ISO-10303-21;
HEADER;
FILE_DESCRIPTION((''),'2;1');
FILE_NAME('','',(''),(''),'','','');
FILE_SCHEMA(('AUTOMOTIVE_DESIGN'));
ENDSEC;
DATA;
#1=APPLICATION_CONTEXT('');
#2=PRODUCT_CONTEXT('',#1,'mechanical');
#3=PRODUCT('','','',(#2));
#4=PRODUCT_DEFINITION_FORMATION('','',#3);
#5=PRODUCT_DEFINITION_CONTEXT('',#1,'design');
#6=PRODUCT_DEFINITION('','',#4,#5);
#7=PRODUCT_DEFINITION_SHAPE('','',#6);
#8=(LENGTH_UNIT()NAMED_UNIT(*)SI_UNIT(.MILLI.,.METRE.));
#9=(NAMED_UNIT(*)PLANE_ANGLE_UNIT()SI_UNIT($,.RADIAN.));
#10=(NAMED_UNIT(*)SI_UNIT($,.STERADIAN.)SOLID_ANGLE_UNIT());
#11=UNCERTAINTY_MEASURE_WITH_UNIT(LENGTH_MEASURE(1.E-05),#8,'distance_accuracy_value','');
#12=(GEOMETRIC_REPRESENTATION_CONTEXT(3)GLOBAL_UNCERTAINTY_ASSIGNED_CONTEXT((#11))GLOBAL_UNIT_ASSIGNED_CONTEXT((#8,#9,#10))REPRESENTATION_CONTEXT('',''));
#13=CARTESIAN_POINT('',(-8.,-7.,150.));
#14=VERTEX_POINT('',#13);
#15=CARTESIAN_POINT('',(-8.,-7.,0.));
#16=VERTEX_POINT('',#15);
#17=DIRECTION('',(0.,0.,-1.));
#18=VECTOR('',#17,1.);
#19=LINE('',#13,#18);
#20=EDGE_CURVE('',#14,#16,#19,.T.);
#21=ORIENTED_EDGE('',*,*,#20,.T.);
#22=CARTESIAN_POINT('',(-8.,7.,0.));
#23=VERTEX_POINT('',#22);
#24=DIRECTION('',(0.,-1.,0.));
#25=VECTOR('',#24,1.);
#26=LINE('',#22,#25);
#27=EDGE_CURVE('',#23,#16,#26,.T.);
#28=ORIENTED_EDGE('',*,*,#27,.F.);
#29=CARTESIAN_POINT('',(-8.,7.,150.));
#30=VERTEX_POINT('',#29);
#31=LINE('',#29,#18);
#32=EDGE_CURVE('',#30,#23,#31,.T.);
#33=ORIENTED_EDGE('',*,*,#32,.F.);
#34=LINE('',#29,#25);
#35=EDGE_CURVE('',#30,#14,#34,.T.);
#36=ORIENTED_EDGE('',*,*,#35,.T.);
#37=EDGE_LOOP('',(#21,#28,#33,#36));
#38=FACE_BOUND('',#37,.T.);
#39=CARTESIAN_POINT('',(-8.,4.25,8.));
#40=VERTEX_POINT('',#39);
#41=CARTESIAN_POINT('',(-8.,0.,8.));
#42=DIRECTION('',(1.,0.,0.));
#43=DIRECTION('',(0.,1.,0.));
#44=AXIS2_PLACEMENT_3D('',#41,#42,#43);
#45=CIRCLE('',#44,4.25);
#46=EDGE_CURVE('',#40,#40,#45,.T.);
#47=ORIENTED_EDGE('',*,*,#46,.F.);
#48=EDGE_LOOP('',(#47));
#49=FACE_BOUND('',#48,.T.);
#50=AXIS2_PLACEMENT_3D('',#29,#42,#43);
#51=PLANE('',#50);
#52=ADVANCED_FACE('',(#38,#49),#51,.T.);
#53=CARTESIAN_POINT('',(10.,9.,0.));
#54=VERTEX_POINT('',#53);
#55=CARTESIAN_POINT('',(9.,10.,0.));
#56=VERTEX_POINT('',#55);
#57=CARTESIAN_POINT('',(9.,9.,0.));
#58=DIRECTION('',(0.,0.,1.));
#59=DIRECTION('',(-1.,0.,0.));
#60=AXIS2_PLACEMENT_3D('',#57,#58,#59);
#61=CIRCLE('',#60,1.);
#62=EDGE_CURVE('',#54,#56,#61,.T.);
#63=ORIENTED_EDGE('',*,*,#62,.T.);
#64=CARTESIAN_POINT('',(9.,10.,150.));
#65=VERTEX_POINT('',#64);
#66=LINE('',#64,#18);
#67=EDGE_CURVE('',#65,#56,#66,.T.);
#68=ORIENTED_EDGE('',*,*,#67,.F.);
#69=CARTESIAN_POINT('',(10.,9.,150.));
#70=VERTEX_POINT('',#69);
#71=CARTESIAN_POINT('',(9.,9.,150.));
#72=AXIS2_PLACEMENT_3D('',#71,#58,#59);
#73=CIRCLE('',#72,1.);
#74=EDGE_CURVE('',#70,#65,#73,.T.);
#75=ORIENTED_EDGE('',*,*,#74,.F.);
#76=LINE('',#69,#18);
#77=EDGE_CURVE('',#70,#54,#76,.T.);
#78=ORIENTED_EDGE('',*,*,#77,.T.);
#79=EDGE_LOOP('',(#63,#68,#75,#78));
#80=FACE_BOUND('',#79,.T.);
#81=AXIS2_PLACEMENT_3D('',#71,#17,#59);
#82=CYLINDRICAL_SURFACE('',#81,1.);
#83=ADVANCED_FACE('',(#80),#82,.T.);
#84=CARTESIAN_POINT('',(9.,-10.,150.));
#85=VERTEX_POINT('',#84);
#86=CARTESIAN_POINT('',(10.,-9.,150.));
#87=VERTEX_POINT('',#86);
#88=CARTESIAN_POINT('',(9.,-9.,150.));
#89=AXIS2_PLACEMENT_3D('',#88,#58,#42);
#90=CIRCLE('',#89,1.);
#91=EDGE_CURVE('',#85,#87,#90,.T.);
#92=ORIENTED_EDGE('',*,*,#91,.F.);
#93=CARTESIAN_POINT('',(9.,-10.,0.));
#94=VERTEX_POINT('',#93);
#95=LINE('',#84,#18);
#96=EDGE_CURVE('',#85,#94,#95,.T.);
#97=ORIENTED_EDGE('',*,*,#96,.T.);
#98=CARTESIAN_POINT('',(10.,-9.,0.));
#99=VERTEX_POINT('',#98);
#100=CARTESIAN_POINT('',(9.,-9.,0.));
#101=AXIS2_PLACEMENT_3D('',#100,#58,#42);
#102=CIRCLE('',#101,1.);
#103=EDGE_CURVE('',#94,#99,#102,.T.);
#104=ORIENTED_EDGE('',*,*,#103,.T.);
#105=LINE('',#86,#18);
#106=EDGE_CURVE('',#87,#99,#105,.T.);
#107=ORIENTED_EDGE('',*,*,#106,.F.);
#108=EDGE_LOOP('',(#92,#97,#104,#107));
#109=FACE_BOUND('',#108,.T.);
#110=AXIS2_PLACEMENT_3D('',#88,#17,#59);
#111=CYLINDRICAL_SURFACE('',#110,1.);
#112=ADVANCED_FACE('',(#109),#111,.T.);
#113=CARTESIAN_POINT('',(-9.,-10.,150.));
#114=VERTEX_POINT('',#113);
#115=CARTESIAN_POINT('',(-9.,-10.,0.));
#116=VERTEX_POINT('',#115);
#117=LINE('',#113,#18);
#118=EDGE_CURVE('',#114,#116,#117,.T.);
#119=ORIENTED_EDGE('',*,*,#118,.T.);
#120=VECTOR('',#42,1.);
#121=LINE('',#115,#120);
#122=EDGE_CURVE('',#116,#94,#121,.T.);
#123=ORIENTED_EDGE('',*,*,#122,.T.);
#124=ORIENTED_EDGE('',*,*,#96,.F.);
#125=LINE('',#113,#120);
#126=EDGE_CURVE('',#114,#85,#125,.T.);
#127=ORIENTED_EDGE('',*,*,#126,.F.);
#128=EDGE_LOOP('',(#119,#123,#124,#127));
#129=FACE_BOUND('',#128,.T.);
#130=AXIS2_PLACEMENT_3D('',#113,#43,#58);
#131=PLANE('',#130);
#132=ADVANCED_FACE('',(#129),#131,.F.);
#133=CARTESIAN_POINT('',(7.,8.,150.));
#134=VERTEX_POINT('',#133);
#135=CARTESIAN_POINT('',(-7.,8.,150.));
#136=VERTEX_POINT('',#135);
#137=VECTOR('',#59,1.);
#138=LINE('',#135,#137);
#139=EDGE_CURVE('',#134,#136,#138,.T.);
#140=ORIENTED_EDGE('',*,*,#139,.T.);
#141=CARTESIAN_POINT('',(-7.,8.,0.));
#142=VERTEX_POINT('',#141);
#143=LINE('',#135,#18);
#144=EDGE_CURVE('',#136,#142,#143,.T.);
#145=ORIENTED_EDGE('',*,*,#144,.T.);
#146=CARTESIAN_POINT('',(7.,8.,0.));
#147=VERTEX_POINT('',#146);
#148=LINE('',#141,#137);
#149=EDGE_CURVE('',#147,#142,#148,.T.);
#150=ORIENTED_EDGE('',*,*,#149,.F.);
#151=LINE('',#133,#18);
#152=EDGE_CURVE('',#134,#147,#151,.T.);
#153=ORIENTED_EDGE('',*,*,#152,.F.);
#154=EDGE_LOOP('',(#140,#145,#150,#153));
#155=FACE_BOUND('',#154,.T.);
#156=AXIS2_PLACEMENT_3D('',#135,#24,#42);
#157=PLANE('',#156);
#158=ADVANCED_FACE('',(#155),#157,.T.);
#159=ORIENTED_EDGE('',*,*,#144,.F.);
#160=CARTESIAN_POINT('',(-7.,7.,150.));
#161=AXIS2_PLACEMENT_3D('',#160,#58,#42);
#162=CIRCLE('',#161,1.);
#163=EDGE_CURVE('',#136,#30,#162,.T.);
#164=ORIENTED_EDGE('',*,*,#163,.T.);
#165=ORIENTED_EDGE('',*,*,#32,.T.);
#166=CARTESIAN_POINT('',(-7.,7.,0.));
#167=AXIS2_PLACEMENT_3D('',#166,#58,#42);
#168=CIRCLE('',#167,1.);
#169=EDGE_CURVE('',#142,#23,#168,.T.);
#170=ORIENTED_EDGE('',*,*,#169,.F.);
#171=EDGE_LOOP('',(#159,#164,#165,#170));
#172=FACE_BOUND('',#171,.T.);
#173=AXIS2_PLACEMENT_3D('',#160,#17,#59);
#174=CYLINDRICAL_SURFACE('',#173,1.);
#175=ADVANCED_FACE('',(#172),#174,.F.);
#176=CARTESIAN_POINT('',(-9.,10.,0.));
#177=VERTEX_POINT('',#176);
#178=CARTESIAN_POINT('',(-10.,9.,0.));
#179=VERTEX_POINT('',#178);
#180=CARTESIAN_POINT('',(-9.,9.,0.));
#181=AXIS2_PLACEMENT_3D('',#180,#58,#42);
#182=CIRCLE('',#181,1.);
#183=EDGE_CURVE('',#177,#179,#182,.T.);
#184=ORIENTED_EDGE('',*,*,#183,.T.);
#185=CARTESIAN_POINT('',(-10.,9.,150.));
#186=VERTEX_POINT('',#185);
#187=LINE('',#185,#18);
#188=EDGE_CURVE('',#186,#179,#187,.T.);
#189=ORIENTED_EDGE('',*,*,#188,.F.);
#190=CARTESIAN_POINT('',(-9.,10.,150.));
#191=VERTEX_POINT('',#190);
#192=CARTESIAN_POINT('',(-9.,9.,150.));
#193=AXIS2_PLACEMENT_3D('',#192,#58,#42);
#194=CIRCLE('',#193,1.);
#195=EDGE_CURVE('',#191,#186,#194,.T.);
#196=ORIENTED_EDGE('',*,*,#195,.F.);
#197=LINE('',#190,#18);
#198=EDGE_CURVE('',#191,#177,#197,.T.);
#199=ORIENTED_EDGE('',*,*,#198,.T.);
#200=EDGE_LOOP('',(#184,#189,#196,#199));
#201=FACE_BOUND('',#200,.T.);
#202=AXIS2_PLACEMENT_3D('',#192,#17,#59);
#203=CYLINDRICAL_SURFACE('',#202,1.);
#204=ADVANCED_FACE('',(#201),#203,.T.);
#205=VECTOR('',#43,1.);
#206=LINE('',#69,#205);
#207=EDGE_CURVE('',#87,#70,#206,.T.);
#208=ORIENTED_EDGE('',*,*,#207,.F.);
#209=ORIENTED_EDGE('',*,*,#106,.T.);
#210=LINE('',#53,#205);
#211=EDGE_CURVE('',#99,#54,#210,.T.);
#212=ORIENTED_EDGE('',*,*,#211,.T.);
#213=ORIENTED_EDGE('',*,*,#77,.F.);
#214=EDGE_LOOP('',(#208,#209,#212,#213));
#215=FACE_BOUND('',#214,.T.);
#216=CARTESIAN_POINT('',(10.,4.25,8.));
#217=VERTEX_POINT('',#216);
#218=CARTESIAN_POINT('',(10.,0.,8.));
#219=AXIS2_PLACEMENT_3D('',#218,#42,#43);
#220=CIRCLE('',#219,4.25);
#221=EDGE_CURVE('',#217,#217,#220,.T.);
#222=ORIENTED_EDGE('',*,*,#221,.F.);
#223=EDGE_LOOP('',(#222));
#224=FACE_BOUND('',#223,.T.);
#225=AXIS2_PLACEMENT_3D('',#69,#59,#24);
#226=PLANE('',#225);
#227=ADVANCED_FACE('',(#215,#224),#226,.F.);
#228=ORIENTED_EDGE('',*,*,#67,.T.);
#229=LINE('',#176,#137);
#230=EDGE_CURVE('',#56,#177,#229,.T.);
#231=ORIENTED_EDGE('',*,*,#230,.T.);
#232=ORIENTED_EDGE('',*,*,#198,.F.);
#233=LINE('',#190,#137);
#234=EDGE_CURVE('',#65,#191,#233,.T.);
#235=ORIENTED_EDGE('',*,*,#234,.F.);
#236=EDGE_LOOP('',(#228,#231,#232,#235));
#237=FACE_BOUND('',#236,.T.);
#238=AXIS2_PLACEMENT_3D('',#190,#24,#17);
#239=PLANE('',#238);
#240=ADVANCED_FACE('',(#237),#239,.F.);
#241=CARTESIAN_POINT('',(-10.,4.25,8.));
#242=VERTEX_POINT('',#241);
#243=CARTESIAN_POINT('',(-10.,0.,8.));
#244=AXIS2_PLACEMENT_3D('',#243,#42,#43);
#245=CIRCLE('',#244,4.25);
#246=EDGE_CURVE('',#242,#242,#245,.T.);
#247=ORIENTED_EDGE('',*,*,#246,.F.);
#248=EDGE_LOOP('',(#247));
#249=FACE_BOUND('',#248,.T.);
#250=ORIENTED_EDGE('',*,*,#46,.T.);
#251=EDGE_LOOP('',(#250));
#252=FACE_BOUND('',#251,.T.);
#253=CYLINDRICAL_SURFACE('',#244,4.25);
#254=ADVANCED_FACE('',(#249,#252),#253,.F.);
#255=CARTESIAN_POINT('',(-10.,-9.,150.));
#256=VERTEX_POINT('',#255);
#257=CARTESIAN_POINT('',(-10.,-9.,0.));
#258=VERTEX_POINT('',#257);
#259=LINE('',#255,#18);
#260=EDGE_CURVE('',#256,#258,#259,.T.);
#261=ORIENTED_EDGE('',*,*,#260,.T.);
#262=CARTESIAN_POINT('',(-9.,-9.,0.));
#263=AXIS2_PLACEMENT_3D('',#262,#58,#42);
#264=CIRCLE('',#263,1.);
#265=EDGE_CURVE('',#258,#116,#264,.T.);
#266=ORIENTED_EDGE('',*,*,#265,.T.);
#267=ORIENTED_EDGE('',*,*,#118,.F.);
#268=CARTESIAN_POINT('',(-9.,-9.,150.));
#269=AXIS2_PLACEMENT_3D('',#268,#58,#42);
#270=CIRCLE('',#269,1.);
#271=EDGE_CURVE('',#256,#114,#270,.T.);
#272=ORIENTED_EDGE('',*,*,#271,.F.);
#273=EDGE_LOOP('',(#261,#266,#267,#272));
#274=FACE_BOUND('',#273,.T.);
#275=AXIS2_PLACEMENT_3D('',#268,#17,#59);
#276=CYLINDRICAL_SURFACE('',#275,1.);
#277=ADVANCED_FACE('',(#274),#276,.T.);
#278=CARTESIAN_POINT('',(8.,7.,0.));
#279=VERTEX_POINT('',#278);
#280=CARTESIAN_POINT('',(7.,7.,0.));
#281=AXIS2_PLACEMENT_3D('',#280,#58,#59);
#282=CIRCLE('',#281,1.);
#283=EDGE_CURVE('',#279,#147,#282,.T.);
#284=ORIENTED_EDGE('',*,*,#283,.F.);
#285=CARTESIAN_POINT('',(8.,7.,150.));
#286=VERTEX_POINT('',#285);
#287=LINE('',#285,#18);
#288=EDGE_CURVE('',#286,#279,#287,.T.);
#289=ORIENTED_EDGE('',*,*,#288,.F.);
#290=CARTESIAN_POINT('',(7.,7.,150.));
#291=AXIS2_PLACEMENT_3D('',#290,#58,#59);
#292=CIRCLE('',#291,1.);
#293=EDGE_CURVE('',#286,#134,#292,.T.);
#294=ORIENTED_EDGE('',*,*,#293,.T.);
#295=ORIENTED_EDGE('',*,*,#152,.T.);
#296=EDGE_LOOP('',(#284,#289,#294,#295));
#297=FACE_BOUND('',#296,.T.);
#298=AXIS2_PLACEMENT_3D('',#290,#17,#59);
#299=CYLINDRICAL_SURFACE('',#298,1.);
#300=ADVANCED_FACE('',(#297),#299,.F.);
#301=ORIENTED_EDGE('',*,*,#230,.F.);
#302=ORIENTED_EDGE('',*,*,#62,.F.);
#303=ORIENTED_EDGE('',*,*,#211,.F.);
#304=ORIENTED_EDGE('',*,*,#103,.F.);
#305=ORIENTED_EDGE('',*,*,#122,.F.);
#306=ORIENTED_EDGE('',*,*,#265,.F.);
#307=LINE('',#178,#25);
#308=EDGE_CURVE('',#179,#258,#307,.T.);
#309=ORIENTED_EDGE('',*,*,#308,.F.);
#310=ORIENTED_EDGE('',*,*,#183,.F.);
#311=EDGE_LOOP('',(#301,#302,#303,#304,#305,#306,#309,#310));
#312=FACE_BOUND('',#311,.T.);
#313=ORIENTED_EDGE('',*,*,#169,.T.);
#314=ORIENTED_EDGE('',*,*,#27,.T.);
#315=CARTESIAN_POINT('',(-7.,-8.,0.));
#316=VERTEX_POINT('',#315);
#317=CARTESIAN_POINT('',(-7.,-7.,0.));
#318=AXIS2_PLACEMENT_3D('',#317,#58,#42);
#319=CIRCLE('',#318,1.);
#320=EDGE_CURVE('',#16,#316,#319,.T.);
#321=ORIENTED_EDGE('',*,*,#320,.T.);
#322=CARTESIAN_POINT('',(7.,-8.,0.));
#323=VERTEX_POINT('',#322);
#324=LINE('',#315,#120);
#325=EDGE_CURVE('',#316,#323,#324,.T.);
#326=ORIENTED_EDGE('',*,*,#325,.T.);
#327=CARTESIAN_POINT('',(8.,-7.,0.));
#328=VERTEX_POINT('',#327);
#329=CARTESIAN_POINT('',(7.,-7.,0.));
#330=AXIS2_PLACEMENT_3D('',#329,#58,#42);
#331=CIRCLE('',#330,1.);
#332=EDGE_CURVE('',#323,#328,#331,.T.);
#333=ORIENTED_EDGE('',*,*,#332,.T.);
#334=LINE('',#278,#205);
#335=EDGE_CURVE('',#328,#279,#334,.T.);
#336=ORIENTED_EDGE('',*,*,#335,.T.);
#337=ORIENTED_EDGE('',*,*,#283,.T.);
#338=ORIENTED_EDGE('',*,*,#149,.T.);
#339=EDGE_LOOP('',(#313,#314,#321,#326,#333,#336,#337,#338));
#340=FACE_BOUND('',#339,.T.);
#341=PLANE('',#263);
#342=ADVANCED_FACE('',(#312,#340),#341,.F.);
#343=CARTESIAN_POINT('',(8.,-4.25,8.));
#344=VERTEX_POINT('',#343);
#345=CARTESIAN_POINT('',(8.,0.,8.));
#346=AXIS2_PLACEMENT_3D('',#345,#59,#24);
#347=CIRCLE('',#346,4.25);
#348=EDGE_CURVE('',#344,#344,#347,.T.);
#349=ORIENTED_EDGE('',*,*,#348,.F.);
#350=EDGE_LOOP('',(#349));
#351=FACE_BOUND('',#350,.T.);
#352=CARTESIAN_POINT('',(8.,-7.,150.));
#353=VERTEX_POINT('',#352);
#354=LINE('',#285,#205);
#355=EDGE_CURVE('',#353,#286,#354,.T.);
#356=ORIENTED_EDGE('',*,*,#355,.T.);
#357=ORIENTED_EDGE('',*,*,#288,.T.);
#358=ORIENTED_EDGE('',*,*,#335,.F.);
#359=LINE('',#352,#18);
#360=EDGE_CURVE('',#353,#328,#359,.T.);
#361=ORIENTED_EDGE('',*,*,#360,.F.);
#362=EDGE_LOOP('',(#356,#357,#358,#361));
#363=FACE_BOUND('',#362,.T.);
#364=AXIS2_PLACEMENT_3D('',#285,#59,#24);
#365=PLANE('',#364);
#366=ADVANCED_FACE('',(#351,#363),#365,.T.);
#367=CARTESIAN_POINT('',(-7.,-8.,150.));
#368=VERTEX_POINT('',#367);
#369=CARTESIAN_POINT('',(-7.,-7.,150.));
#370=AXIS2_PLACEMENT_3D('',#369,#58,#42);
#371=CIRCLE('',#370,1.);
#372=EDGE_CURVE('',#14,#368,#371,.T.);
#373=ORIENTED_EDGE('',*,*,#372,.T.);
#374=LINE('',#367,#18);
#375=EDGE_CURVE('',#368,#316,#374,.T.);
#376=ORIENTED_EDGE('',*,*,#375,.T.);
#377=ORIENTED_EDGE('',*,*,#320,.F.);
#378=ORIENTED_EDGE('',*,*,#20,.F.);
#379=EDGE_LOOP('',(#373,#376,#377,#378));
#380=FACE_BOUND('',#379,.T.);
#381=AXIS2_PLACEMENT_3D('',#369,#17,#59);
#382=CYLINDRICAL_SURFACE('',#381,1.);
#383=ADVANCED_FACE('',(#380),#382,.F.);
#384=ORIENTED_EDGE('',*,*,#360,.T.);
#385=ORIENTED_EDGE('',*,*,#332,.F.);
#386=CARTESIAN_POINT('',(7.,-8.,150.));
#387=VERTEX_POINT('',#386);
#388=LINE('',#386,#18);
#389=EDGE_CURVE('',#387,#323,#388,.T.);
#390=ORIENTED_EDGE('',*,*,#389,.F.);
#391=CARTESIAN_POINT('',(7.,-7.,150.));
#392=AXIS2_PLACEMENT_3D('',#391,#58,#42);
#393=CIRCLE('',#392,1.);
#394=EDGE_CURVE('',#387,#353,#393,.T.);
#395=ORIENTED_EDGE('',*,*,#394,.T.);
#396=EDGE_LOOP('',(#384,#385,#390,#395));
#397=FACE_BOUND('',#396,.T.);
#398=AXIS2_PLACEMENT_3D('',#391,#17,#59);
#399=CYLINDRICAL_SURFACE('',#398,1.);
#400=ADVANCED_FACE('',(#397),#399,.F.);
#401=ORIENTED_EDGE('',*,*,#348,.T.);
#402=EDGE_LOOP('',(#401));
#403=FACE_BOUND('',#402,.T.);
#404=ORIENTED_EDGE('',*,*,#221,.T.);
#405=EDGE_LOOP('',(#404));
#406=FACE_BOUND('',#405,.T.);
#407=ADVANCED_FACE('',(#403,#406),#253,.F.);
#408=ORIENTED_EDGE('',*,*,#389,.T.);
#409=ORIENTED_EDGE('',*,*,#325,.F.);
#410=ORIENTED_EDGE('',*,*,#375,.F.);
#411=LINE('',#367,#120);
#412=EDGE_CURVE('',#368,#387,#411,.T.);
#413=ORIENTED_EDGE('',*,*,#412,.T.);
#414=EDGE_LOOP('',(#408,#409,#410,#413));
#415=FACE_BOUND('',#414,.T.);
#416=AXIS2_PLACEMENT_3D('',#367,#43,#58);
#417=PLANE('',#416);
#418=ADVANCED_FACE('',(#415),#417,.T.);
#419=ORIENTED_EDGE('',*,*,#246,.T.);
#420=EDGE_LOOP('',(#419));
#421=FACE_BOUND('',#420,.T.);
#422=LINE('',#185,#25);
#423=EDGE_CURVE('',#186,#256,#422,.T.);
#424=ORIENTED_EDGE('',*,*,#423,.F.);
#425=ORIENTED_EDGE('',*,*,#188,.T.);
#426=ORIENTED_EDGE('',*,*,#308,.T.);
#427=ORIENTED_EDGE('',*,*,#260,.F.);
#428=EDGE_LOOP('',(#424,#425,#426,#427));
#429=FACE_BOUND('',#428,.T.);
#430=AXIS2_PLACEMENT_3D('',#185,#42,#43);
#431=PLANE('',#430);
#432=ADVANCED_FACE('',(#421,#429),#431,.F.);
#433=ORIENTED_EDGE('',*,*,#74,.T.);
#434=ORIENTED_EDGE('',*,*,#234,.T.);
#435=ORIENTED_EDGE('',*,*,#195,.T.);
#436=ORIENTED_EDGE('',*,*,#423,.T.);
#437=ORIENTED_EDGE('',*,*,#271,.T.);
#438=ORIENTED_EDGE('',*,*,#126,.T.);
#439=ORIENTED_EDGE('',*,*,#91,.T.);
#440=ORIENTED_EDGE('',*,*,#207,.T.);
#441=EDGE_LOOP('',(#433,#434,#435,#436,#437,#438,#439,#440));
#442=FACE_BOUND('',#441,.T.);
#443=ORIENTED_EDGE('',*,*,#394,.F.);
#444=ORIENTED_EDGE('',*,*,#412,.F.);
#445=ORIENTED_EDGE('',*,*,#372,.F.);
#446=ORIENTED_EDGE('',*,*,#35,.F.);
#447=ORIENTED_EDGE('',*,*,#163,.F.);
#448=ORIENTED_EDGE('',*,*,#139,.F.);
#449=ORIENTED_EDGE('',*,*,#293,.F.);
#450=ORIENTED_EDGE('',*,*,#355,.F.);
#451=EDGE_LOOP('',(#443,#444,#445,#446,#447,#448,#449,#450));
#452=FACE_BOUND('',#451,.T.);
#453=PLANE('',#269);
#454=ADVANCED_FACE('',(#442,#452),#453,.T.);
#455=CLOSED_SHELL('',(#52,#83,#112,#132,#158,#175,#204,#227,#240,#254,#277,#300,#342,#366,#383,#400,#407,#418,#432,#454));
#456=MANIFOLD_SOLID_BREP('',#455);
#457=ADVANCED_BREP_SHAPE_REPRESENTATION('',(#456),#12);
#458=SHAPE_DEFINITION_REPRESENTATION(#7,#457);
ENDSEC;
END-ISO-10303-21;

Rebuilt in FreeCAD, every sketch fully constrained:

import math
import FreeCAD as App
import Part
import Sketcher
from FreeCAD import Vector

doc = App.newDocument("Part")
body = doc.addObject("PartDesign::Body", "Body")

# Sketch on XY plane
sketch1 = body.newObject("Sketcher::SketchObject", "Sketch")
sketch1.AttachmentSupport = (doc.getObject("XY_Plane"), [""])
sketch1.MapMode = "FlatFace"
sketch1.addGeometry([
    Part.LineSegment(Vector(9, 10, 0), Vector(-9, 10, 0)),  # 0
    Part.ArcOfCircle(Part.Circle(Vector(-9, 9, 0), Vector(0, 0, 1), 1), math.radians(90), math.radians(180)),  # 1
    Part.LineSegment(Vector(-10, 9, 0), Vector(-10, -9, 0)),  # 2
    Part.ArcOfCircle(Part.Circle(Vector(-9, -9, 0), Vector(0, 0, 1), 1), math.radians(-180), math.radians(-90)),  # 3
    Part.LineSegment(Vector(-9, -10, 0), Vector(9, -10, 0)),  # 4
    Part.ArcOfCircle(Part.Circle(Vector(9, -9, 0), Vector(0, 0, 1), 1), math.radians(-90), math.radians(0)),  # 5
    Part.LineSegment(Vector(10, -9, 0), Vector(10, 9, 0)),  # 6
    Part.ArcOfCircle(Part.Circle(Vector(9, 9, 0), Vector(0, 0, 1), 1), math.radians(0), math.radians(90)),  # 7
    Part.LineSegment(Vector(-7, 8, 0), Vector(7, 8, 0)),  # 8
    Part.ArcOfCircle(Part.Circle(Vector(7, 7, 0), Vector(0, 0, 1), 1), math.radians(0), math.radians(90)),  # 9
    Part.LineSegment(Vector(8, 7, 0), Vector(8, -7, 0)),  # 10
    Part.ArcOfCircle(Part.Circle(Vector(7, -7, 0), Vector(0, 0, 1), 1), math.radians(-90), math.radians(0)),  # 11
    Part.LineSegment(Vector(7, -8, 0), Vector(-7, -8, 0)),  # 12
    Part.ArcOfCircle(Part.Circle(Vector(-7, -7, 0), Vector(0, 0, 1), 1), math.radians(-180), math.radians(-90)),  # 13
    Part.LineSegment(Vector(-8, -7, 0), Vector(-8, 7, 0)),  # 14
    Part.ArcOfCircle(Part.Circle(Vector(-7, 7, 0), Vector(0, 0, 1), 1), math.radians(90), math.radians(180)),  # 15
], False)
sketch1.addConstraint([
    Sketcher.Constraint("Tangent", 0, 2, 1, 1),
    Sketcher.Constraint("Tangent", 1, 2, 2, 1),
    Sketcher.Constraint("Tangent", 2, 2, 3, 1),
    Sketcher.Constraint("Tangent", 3, 2, 4, 1),
    Sketcher.Constraint("Tangent", 4, 2, 5, 1),
    Sketcher.Constraint("Tangent", 5, 2, 6, 1),
    Sketcher.Constraint("Tangent", 6, 2, 7, 1),
    Sketcher.Constraint("Tangent", 7, 2, 0, 1),
    Sketcher.Constraint("Tangent", 8, 2, 9, 2),
    Sketcher.Constraint("Tangent", 9, 1, 10, 1),
    Sketcher.Constraint("Tangent", 10, 2, 11, 2),
    Sketcher.Constraint("Tangent", 11, 1, 12, 1),
    Sketcher.Constraint("Tangent", 12, 2, 13, 2),
    Sketcher.Constraint("Tangent", 13, 1, 14, 1),
    Sketcher.Constraint("Tangent", 14, 2, 15, 2),
    Sketcher.Constraint("Tangent", 15, 1, 8, 1),
    Sketcher.Constraint("Horizontal", 0),
    Sketcher.Constraint("Vertical", 2),
    Sketcher.Constraint("Horizontal", 4),
    Sketcher.Constraint("Vertical", 6),
    Sketcher.Constraint("Horizontal", 8),
    Sketcher.Constraint("Vertical", 10),
    Sketcher.Constraint("Horizontal", 12),
    Sketcher.Constraint("Vertical", 14),
    Sketcher.Constraint("Equal", 1, 3),
    Sketcher.Constraint("Equal", 3, 5),
    Sketcher.Constraint("Equal", 5, 7),
    Sketcher.Constraint("Equal", 7, 9),
    Sketcher.Constraint("Equal", 9, 11),
    Sketcher.Constraint("Equal", 11, 13),
    Sketcher.Constraint("Equal", 13, 15),
    Sketcher.Constraint("Symmetric", 1, 3, 5, 3, -1, 1),
    Sketcher.Constraint("Symmetric", 9, 3, 13, 3, -1, 1),
    Sketcher.Constraint("Equal", 4, 2),
    Sketcher.Constraint("Equal", 12, 10),
    Sketcher.Constraint("Radius", 1, 1.0),
    Sketcher.Constraint("DistanceX", 0, 2, 0, 1, 18.0),
    Sketcher.Constraint("DistanceX", 8, 1, 8, 2, 14.0),
])
pad1 = body.newObject("PartDesign::Pad", "Pad")
pad1.Profile = sketch1
pad1.Length = 150

# Sketch on YZ plane
sketch2 = body.newObject("Sketcher::SketchObject", "Sketch001")
sketch2.AttachmentSupport = (doc.getObject("YZ_Plane"), [""])
sketch2.MapMode = "FlatFace"
sketch2.AttachmentOffset = App.Placement(Vector(0, 0, 10), App.Rotation())
sketch2.addGeometry(Part.Circle(Vector(0, 8, 0), Vector(0, 0, 1), 4.2), False)
sketch2.addConstraint([
    Sketcher.Constraint("PointOnObject", 0, 3, -2),
    Sketcher.Constraint("Diameter", 0, 8.5),
    Sketcher.Constraint("DistanceY", -1, 1, 0, 3, 8.0),
])
pocket1 = body.newObject("PartDesign::Pocket", "Pocket")
pocket1.Profile = sketch2
pocket1.Type = "ThroughAll"

doc.recompute()
